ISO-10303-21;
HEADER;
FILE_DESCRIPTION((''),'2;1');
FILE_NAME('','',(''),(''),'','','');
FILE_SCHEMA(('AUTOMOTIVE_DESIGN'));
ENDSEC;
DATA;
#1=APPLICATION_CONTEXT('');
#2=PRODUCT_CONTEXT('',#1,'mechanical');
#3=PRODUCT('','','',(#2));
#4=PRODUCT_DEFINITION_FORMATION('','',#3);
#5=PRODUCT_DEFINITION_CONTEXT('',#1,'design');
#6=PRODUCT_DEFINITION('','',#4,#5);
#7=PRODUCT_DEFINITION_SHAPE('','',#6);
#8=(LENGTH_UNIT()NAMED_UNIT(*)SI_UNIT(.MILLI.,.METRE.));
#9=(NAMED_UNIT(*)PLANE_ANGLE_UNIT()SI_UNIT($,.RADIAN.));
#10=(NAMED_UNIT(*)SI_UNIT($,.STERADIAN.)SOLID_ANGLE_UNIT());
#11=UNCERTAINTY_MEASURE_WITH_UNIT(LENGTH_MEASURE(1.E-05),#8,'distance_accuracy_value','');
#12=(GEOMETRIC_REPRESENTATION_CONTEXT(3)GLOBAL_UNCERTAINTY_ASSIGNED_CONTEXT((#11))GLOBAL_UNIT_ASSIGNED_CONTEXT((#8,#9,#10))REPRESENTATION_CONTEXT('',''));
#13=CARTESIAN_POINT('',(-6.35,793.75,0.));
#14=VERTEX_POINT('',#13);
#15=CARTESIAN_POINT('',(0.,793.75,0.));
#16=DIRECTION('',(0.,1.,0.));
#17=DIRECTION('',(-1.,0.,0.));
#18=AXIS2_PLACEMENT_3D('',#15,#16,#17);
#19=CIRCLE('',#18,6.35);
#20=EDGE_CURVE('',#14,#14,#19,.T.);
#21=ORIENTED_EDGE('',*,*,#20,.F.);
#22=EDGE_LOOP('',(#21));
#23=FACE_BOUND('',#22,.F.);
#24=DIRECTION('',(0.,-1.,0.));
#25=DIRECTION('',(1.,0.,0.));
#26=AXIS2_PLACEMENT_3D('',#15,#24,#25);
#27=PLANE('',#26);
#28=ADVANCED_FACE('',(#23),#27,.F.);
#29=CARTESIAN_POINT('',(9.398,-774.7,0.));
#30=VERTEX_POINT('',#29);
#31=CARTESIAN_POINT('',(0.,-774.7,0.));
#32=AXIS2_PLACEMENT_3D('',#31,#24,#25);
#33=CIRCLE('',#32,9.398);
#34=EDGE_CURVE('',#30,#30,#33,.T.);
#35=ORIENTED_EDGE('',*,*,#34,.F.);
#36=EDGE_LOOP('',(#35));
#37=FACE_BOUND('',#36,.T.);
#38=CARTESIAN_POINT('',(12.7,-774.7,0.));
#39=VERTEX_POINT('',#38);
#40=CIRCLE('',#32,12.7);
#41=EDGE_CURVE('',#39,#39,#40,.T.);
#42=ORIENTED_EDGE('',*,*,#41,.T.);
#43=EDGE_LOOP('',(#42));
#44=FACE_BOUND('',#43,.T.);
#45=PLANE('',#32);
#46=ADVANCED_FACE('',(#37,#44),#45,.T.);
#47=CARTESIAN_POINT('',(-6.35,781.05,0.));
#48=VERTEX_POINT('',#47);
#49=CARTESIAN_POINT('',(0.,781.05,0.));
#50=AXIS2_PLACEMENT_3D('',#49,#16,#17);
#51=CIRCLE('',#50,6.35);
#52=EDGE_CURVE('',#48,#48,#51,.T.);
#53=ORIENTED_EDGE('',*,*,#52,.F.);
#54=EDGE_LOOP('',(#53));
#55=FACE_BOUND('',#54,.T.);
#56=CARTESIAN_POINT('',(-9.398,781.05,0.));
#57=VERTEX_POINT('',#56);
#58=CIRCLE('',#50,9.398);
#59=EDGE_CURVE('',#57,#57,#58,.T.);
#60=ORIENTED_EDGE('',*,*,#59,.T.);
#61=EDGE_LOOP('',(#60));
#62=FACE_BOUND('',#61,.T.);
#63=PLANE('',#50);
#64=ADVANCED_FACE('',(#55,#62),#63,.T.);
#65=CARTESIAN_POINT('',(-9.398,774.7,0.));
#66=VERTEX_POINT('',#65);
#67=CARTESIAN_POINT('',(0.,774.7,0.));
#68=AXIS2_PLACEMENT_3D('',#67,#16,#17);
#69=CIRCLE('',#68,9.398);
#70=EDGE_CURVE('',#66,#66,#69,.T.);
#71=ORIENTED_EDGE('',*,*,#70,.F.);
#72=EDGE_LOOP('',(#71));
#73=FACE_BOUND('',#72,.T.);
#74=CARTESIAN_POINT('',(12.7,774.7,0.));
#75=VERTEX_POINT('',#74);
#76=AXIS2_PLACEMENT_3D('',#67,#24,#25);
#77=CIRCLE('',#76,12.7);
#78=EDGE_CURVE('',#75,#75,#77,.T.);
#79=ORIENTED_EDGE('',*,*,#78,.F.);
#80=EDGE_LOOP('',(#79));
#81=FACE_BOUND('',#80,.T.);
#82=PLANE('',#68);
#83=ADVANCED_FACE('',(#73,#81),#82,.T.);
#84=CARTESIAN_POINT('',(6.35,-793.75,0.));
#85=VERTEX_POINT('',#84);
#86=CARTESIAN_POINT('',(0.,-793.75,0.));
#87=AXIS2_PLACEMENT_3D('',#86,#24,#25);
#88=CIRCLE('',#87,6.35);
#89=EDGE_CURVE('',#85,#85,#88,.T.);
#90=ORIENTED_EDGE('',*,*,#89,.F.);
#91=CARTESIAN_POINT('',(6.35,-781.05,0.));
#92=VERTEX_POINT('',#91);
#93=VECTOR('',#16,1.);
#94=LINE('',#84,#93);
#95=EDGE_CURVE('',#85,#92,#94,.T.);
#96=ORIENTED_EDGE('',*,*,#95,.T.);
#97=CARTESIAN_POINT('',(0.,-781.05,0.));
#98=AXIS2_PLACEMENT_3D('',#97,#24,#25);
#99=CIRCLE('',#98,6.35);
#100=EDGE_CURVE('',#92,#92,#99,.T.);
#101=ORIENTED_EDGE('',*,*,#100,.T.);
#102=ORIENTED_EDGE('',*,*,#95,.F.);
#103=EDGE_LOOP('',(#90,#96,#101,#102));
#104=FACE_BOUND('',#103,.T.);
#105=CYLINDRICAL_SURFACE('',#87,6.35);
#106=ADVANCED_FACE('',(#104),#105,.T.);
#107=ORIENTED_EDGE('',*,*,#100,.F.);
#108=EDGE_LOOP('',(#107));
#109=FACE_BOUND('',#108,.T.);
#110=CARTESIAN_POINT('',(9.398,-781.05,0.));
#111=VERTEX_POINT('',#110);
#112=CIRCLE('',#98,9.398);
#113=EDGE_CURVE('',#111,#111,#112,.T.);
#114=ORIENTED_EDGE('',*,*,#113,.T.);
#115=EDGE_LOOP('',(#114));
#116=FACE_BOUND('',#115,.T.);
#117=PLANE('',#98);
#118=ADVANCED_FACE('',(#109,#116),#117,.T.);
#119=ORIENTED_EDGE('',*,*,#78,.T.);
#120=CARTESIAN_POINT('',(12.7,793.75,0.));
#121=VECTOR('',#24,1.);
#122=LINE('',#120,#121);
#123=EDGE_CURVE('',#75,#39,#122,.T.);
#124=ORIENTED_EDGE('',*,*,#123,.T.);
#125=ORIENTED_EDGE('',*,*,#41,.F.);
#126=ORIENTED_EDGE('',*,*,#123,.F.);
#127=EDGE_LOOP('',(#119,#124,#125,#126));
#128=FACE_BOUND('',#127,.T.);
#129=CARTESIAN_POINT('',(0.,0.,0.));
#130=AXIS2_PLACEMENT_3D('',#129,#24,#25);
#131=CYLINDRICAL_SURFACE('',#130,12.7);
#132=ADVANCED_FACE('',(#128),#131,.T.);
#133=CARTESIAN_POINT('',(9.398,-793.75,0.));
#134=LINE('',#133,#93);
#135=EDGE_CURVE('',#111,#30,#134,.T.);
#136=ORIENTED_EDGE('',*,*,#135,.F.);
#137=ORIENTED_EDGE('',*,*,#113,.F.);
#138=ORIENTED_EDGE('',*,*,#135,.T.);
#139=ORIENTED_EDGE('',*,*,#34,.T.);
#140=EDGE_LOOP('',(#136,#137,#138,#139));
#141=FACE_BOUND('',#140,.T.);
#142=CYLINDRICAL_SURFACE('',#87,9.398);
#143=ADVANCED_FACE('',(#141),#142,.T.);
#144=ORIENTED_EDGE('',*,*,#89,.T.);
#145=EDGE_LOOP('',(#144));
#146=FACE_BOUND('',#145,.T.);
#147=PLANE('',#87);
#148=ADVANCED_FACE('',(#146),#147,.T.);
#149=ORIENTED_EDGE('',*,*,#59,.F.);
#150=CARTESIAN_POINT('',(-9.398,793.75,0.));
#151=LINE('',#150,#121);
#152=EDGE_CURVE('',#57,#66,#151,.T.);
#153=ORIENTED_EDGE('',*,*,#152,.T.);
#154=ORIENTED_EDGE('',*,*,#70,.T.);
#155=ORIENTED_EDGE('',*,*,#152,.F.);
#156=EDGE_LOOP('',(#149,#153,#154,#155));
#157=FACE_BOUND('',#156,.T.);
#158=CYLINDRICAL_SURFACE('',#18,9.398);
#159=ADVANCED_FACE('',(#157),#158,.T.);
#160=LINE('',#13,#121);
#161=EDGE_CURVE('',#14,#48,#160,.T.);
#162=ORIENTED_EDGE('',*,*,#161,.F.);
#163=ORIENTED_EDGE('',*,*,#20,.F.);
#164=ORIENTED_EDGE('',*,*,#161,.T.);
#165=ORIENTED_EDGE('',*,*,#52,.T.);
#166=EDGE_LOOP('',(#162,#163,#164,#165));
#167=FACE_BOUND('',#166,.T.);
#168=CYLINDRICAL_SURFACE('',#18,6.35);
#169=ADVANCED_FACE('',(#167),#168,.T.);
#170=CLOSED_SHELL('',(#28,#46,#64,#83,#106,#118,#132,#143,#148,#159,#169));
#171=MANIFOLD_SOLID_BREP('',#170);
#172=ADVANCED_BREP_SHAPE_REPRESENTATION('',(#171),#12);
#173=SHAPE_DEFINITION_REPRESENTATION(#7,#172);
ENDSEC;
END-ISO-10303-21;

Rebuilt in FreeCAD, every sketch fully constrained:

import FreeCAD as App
import Part
import Sketcher

V = App.Vector
Q = App.Units.Quantity

doc = App.newDocument("Part")
body = doc.addObject("PartDesign::Body", "Body")

sketch1 = body.newObject("Sketcher::SketchObject", "Sketch")
sketch1.AttachmentSupport = (doc.getObject("XZ_Plane"), [""])
sketch1.MapMode = "FlatFace"
sketch1.addGeometry(Part.Circle(V(0, 0, 0), V(0, 0, 1), 12.7), False)
sketch1.addConstraint(Sketcher.Constraint("Coincident", 0, 3, -1, 1))
sketch1.addConstraint(Sketcher.Constraint("Diameter", 0, Q("1 in")))
pad1 = body.newObject("PartDesign::Pad", "Pad")
pad1.Profile = sketch1
pad1.Length = Q("62.5 in")
pad1.Midplane = True

sketch2 = body.newObject("Sketcher::SketchObject", "Sketch001")
sketch2.AttachmentSupport = (doc.getObject("XZ_Plane"), [""])
sketch2.MapMode = "FlatFace"
sketch2.AttachmentOffset = App.Placement(V(0, 0, -31.25 * 25.4), App.Rotation())
sketch2.addGeometry(Part.Circle(V(0, 0, 0), V(0, 0, 1), 12.7), False)
sketch2.addGeometry(Part.Circle(V(0, 0, 0), V(0, 0, 1), 9.398), False)
sketch2.addConstraint(Sketcher.Constraint("Coincident", 0, 3, -1, 1))
sketch2.addConstraint(Sketcher.Constraint("Coincident", 1, 3, -1, 1))
sketch2.addConstraint(Sketcher.Constraint("Diameter", 0, Q("1 in")))
sketch2.addConstraint(Sketcher.Constraint("Diameter", 1, Q("0.74 in")))
pocket1 = body.newObject("PartDesign::Pocket", "Pocket")
pocket1.Profile = sketch2
pocket1.Length = Q("0.75 in")
pocket1.Reversed = True

sketch3 = body.newObject("Sketcher::SketchObject", "Sketch002")
sketch3.AttachmentSupport = (doc.getObject("XZ_Plane"), [""])
sketch3.MapMode = "FlatFace"
sketch3.AttachmentOffset = App.Placement(V(0, 0, 31.25 * 25.4), App.Rotation())
sketch3.addGeometry(Part.Circle(V(0, 0, 0), V(0, 0, 1), 12.7), False)
sketch3.addGeometry(Part.Circle(V(0, 0, 0), V(0, 0, 1), 9.398), False)
sketch3.addConstraint(Sketcher.Constraint("Coincident", 0, 3, -1, 1))
sketch3.addConstraint(Sketcher.Constraint("Coincident", 1, 3, -1, 1))
sketch3.addConstraint(Sketcher.Constraint("Diameter", 0, Q("1 in")))
sketch3.addConstraint(Sketcher.Constraint("Diameter", 1, Q("0.74 in")))
pocket2 = body.newObject("PartDesign::Pocket", "Pocket001")
pocket2.Profile = sketch3
pocket2.Length = Q("0.75 in")

sketch4 = body.newObject("Sketcher::SketchObject", "Sketch003")
sketch4.AttachmentSupport = (doc.getObject("XZ_Plane"), [""])
sketch4.MapMode = "FlatFace"
sketch4.AttachmentOffset = App.Placement(V(0, 0, 31.25 * 25.4), App.Rotation())
sketch4.addGeometry(Part.Circle(V(0, 0, 0), V(0, 0, 1), 9.398), False)
sketch4.addGeometry(Part.Circle(V(0, 0, 0), V(0, 0, 1), 6.35), False)
sketch4.addConstraint(Sketcher.Constraint("Coincident", 0, 3, -1, 1))
sketch4.addConstraint(Sketcher.Constraint("Coincident", 1, 3, -1, 1))
sketch4.addConstraint(Sketcher.Constraint("Diameter", 1, Q("0.5 in")))
sketch4.addConstraint(Sketcher.Constraint("Diameter", 0, Q("0.74 in")))
pocket3 = body.newObject("PartDesign::Pocket", "Pocket002")
pocket3.Profile = sketch4
pocket3.Length = Q("0.5 in")

sketch5 = body.newObject("Sketcher::SketchObject", "Sketch004")
sketch5.AttachmentSupport = (doc.getObject("XZ_Plane"), [""])
sketch5.MapMode = "FlatFace"
sketch5.AttachmentOffset = App.Placement(V(0, 0, -31.25 * 25.4), App.Rotation())
sketch5.addGeometry(Part.Circle(V(0, 0, 0), V(0, 0, 1), 9.398), False)
sketch5.addGeometry(Part.Circle(V(0, 0, 0), V(0, 0, 1), 6.35), False)
sketch5.addConstraint(Sketcher.Constraint("Coincident", 0, 3, -1, 1))
sketch5.addConstraint(Sketcher.Constraint("Coincident", 1, 3, -1, 1))
sketch5.addConstraint(Sketcher.Constraint("Diameter", 1, Q("0.5 in")))
sketch5.addConstraint(Sketcher.Constraint("Diameter", 0, Q("0.74 in")))
pocket4 = body.newObject("PartDesign::Pocket", "Pocket003")
pocket4.Profile = sketch5
pocket4.Length = Q("0.5 in")
pocket4.Reversed = True

doc.recompute()
